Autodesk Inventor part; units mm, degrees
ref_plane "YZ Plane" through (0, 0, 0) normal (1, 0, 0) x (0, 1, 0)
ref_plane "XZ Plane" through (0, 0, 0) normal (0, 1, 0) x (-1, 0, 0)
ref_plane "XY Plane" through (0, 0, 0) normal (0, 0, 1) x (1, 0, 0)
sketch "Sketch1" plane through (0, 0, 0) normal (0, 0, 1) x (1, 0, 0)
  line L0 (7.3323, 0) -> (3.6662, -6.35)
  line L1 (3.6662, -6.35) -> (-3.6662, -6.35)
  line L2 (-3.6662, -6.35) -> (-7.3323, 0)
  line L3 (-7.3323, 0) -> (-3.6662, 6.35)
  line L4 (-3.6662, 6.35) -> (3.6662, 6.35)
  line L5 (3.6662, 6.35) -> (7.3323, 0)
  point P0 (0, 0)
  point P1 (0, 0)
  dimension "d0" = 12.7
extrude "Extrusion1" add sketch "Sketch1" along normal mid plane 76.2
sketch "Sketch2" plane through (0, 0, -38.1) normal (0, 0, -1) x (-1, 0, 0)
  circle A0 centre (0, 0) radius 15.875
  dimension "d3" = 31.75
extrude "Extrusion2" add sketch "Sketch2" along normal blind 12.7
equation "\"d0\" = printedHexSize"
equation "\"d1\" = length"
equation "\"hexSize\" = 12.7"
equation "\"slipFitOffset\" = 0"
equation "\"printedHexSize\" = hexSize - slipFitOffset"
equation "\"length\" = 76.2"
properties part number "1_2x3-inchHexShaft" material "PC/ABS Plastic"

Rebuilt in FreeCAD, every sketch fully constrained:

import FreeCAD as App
import Part
import Sketcher
Q = App.Units.Quantity

doc = App.newDocument("Part")
body = doc.addObject("PartDesign::Body", "Body")

# Sketch on XY plane
sketch1 = doc.addObject("Sketcher::SketchObject", "Sketch")
body.addObject(sketch1)
sketch1.AttachmentSupport = (doc.XY_Plane, [""])
sketch1.MapMode = "FlatFace"
sketch1.addGeometry([
    Part.LineSegment(App.Vector(3.6662, -6.35, 0), App.Vector(7.3323, 0, 0)),  # 0
    Part.LineSegment(App.Vector(7.3323, 0, 0), App.Vector(3.6662, 6.35, 0)),  # 1
    Part.LineSegment(App.Vector(3.6662, 6.35, 0), App.Vector(-3.6662, 6.35, 0)),  # 2
    Part.LineSegment(App.Vector(-3.6662, 6.35, 0), App.Vector(-7.3323, 0, 0)),  # 3
    Part.LineSegment(App.Vector(-7.3323, 0, 0), App.Vector(-3.6662, -6.35, 0)),  # 4
    Part.LineSegment(App.Vector(-3.6662, -6.35, 0), App.Vector(3.6662, -6.35, 0)),  # 5
], False)
sketch1.addConstraint([
    Sketcher.Constraint("Coincident", 0, 2, 1, 1),
    Sketcher.Constraint("Coincident", 1, 2, 2, 1),
    Sketcher.Constraint("Coincident", 2, 2, 3, 1),
    Sketcher.Constraint("Coincident", 3, 2, 4, 1),
    Sketcher.Constraint("Coincident", 4, 2, 5, 1),
    Sketcher.Constraint("Coincident", 5, 2, 0, 1),
    Sketcher.Constraint("Horizontal", 2),
    Sketcher.Constraint("Horizontal", 5),
    Sketcher.Constraint("Symmetric", 0, 2, 3, 2, -1, 1),
    Sketcher.Constraint("Symmetric", 1, 2, 4, 2, -1, 1),
    Sketcher.Constraint("PointOnObject", 0, 2, -1),
    Sketcher.Constraint("Parallel", 0, 3),
    Sketcher.Constraint("Vertical", 2, 2, 4, 2),
    Sketcher.Constraint("DistanceY", 4, 2, 2, 2, Q("0.5 in")),
    Sketcher.Constraint("Angle", 0, Q("60.0005 deg")),
    Sketcher.Constraint("DistanceX", 2, 2, 0, 2, Q("0.433 in")),
])
pad1 = doc.addObject("PartDesign::Pad", "Pad")
body.addObject(pad1)
pad1.Profile = sketch1
pad1.Length = Q("3 in")
pad1.Midplane = True

# Sketch on XY plane
sketch2 = doc.addObject("Sketcher::SketchObject", "Sketch001")
body.addObject(sketch2)
sketch2.AttachmentSupport = (doc.XY_Plane, [""])
sketch2.MapMode = "FlatFace"
sketch2.AttachmentOffset = App.Placement(App.Vector(0, 0, -1.5 * 25.4), App.Rotation())
sketch2.addGeometry(Part.Circle(App.Vector(0, 0, 0), App.Vector(0, 0, 1), 15.875), False)
sketch2.addConstraint([
    Sketcher.Constraint("Coincident", 0, 3, -1, 1),
    Sketcher.Constraint("Diameter", 0, Q("1.25 in")),
])
pad2 = doc.addObject("PartDesign::Pad", "Pad001")
body.addObject(pad2)
pad2.Profile = sketch2
pad2.Length = Q("0.5 in")
pad2.Reversed = True

doc.recompute()
